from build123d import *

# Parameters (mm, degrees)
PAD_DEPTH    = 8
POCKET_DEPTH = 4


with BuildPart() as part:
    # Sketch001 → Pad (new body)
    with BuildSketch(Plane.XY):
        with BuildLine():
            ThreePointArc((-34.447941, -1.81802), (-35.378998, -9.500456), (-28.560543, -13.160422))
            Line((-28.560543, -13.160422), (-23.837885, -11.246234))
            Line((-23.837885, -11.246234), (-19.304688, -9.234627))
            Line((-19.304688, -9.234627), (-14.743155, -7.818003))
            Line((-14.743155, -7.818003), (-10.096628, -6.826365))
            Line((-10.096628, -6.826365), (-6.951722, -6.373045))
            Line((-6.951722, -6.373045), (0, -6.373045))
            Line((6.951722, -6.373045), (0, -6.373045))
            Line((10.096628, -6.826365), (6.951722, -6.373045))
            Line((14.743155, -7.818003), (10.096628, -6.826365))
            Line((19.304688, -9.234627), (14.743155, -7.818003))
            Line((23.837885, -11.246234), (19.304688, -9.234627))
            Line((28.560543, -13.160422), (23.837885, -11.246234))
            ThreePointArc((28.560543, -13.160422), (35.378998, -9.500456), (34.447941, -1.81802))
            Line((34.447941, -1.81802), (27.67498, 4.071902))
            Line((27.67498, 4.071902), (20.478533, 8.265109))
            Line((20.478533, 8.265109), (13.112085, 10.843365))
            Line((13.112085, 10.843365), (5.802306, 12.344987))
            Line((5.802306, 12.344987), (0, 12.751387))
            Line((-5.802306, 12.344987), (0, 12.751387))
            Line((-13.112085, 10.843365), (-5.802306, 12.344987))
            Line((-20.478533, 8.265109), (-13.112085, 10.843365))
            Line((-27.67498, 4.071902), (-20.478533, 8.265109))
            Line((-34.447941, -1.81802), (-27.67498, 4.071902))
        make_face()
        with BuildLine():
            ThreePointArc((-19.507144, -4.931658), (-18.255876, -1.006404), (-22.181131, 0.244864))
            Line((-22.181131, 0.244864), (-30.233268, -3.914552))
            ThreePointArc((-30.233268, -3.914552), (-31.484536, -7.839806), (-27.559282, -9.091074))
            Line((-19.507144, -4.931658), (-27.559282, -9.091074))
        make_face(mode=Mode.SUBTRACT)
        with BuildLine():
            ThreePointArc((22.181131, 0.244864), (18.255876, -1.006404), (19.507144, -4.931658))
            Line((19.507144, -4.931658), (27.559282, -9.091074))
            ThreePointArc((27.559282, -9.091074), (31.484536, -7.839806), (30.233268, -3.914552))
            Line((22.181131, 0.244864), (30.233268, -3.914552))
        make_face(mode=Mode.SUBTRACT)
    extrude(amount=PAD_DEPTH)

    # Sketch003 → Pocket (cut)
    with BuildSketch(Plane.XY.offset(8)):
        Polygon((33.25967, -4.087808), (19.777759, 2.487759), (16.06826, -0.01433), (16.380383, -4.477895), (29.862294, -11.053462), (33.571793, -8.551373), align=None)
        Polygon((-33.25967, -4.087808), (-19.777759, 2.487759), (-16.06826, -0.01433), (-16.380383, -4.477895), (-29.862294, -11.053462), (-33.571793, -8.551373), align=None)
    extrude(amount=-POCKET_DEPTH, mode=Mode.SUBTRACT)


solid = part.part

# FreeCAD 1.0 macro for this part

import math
import FreeCAD as App
import Part
import Sketcher
Q = App.Units.Quantity

doc = App.newDocument("Part")
body = doc.addObject("PartDesign::Body", "Body")

# Sketch on XY plane
sketch1 = doc.addObject("Sketcher::SketchObject", "Sketch")
body.addObject(sketch1)
sketch1.AttachmentSupport = (doc.XY_Plane, [""])
sketch1.MapMode = "FlatFace"
sketch1.addGeometry([
    Part.ArcOfCircle(Part.Circle(App.Vector(-29.291356, -6.340598, 0), App.Vector(0, 0, 1), 6.858869), math.radians(138.747645), math.radians(276.116483)),  # 0
    Part.LineSegment(App.Vector(-28.560543, -13.160422, 0), App.Vector(-23.837885, -11.246234, 0)),  # 1
    Part.LineSegment(App.Vector(-23.837885, -11.246234, 0), App.Vector(-19.304688, -9.234627, 0)),  # 2
    Part.LineSegment(App.Vector(-19.304688, -9.234627, 0), App.Vector(-14.743155, -7.818003, 0)),  # 3
    Part.LineSegment(App.Vector(-14.743155, -7.818003, 0), App.Vector(-10.096628, -6.826365, 0)),  # 4
    Part.LineSegment(App.Vector(-10.096628, -6.826365, 0), App.Vector(-6.951722, -6.373045, 0)),  # 5
    Part.LineSegment(App.Vector(-6.951722, -6.373045, 0), App.Vector(6.951722, -6.373045, 0)),  # 6
    Part.LineSegment(App.Vector(6.951722, -6.373045, 0), App.Vector(10.096628, -6.826365, 0)),  # 7
    Part.LineSegment(App.Vector(10.096628, -6.826365, 0), App.Vector(14.743155, -7.818003, 0)),  # 8
    Part.LineSegment(App.Vector(14.743155, -7.818003, 0), App.Vector(19.304688, -9.234627, 0)),  # 9
    Part.LineSegment(App.Vector(19.304688, -9.234627, 0), App.Vector(23.837885, -11.246234, 0)),  # 10
    Part.LineSegment(App.Vector(23.837885, -11.246234, 0), App.Vector(28.560543, -13.160422, 0)),  # 11
    Part.ArcOfCircle(Part.Circle(App.Vector(29.291356, -6.340598, 0), App.Vector(0, 0, 1), 6.858869), math.radians(-96.116483), math.radians(41.252355)),  # 12
    Part.LineSegment(App.Vector(34.447941, -1.81802, 0), App.Vector(27.67498, 4.071902, 0)),  # 13
    Part.LineSegment(App.Vector(27.67498, 4.071902, 0), App.Vector(20.478533, 8.265109, 0)),  # 14
    Part.LineSegment(App.Vector(20.478533, 8.265109, 0), App.Vector(13.112085, 10.843365, 0)),  # 15
    Part.LineSegment(App.Vector(13.112085, 10.843365, 0), App.Vector(5.802306, 12.344987, 0)),  # 16
    Part.LineSegment(App.Vector(5.802306, 12.344987, 0), App.Vector(0, 12.751387, 0)),  # 17
    Part.LineSegment(App.Vector(0, 12.751387, 0), App.Vector(-5.802306, 12.344987, 0)),  # 18
    Part.LineSegment(App.Vector(-5.802306, 12.344987, 0), App.Vector(-13.112085, 10.843365, 0)),  # 19
    Part.LineSegment(App.Vector(-13.112085, 10.843365, 0), App.Vector(-20.478533, 8.265109, 0)),  # 20
    Part.LineSegment(App.Vector(-20.478533, 8.265109, 0), App.Vector(-27.67498, 4.071902, 0)),  # 21
    Part.LineSegment(App.Vector(-27.67498, 4.071902, 0), App.Vector(-34.447941, -1.81802, 0)),  # 22
    Part.ArcOfCircle(Part.Circle(App.Vector(-20.844137, -2.343397, 0), App.Vector(0, 0, 1), 2.913185), math.radians(-62.680913), math.radians(117.319096)),  # 23
    Part.LineSegment(App.Vector(-19.507144, -4.931658, 0), App.Vector(-27.559282, -9.091074, 0)),  # 24
    Part.ArcOfCircle(Part.Circle(App.Vector(-28.896275, -6.502813, 0), App.Vector(0, 0, 1), 2.913185), math.radians(117.319083), math.radians(297.319083)),  # 25
    Part.LineSegment(App.Vector(-30.233268, -3.914552, 0), App.Vector(-22.181131, 0.244864, 0)),  # 26
    Part.ArcOfCircle(Part.Circle(App.Vector(20.844137, -2.343397, 0), App.Vector(0, 0, 1), 2.913185), math.radians(62.680904), math.radians(242.680913)),  # 27
    Part.LineSegment(App.Vector(22.181131, 0.244864, 0), App.Vector(30.233268, -3.914552, 0)),  # 28
    Part.ArcOfCircle(Part.Circle(App.Vector(28.896275, -6.502813, 0), App.Vector(0, 0, 1), 2.913185), math.radians(-117.319083), math.radians(62.680917)),  # 29
    Part.LineSegment(App.Vector(27.559282, -9.091074, 0), App.Vector(19.507144, -4.931658, 0)),  # 30
], False)
sketch1.addConstraint([
    Sketcher.Constraint("Coincident", 0, 2, 1, 1),
    Sketcher.Constraint("Coincident", 1, 2, 2, 1),
    Sketcher.Constraint("Coincident", 2, 2, 3, 1),
    Sketcher.Constraint("Coincident", 3, 2, 4, 1),
    Sketcher.Constraint("Coincident", 4, 2, 5, 1),
    Sketcher.Constraint("Coincident", 5, 2, 6, 1),
    Sketcher.Constraint("Coincident", 6, 2, 7, 1),
    Sketcher.Constraint("Coincident", 7, 2, 8, 1),
    Sketcher.Constraint("Coincident", 8, 2, 9, 1),
    Sketcher.Constraint("Coincident", 9, 2, 10, 1),
    Sketcher.Constraint("Coincident", 10, 2, 11, 1),
    Sketcher.Constraint("Coincident", 11, 2, 12, 1),
    Sketcher.Constraint("Coincident", 12, 2, 13, 1),
    Sketcher.Constraint("Coincident", 13, 2, 14, 1),
    Sketcher.Constraint("Coincident", 14, 2, 15, 1),
    Sketcher.Constraint("Coincident", 15, 2, 16, 1),
    Sketcher.Constraint("Coincident", 16, 2, 17, 1),
    Sketcher.Constraint("Coincident", 17, 2, 18, 1),
    Sketcher.Constraint("Coincident", 18, 2, 19, 1),
    Sketcher.Constraint("Coincident", 19, 2, 20, 1),
    Sketcher.Constraint("Coincident", 20, 2, 21, 1),
    Sketcher.Constraint("Coincident", 21, 2, 22, 1),
    Sketcher.Constraint("Coincident", 22, 2, 0, 1),
    Sketcher.Constraint("Coincident", 23, 1, 24, 1),
    Sketcher.Constraint("Coincident", 24, 2, 25, 2),
    Sketcher.Constraint("Coincident", 25, 1, 26, 1),
    Sketcher.Constraint("Coincident", 26, 2, 23, 2),
    Sketcher.Constraint("Coincident", 27, 1, 28, 1),
    Sketcher.Constraint("Coincident", 28, 2, 29, 2),
    Sketcher.Constraint("Coincident", 29, 1, 30, 1),
    Sketcher.Constraint("Coincident", 30, 2, 27, 2),
    Sketcher.Constraint("Horizontal", 6),
    Sketcher.Constraint("PointOnObject", 17, 2, -2),
    Sketcher.Constraint("Radius", 0, Q("6.858869 mm")),
    Sketcher.Constraint("Radius", 12, Q("6.858869 mm")),
    Sketcher.Constraint("Radius", 23, Q("2.913185 mm")),
    Sketcher.Constraint("Radius", 25, Q("2.913185 mm")),
    Sketcher.Constraint("Radius", 27, Q("2.913185 mm")),
    Sketcher.Constraint("Radius", 29, Q("2.913185 mm")),
    Sketcher.Constraint("DistanceY", 0, 3, -1, 1, Q("6.340598 mm")),
    Sketcher.Constraint("DistanceY", 12, 3, -1, 1, Q("6.340598 mm")),
    Sketcher.Constraint("DistanceY", -1, 1, 13, 2, Q("4.071902 mm")),
    Sketcher.Constraint("DistanceY", -1, 1, 21, 2, Q("4.071902 mm")),
    Sketcher.Constraint("DistanceY", 0, 3, 23, 3, Q("3.997202 mm")),
    Sketcher.Constraint("DistanceY", 12, 3, 27, 3, Q("3.997202 mm")),
    Sketcher.Constraint("DistanceX", 0, 3, 3, 2, Q("14.548201 mm")),
    Sketcher.Constraint("DistanceX", 8, 2, 12, 3, Q("14.548201 mm")),
    Sketcher.Constraint("DistanceY", 11, 2, 12, 2, Q("11.342402 mm")),
    Sketcher.Constraint("DistanceY", 16, 2, 17, 2, Q("0.4064 mm")),
    Sketcher.Constraint("DistanceY", 18, 2, 17, 2, Q("0.4064 mm")),
    Sketcher.Constraint("DistanceY", 0, 2, 22, 2, Q("11.342402 mm")),
    Sketcher.Constraint("DistanceX", 26, 2, 20, 2, Q("1.702598 mm")),
    Sketcher.Constraint("DistanceX", 14, 2, 27, 1, Q("1.702598 mm")),
    Sketcher.Constraint("Distance", 2, Q("4.95948 mm")),
    Sketcher.Constraint("Distance", 5, Q("3.17741 mm")),
    Sketcher.Constraint("Distance", 7, Q("3.17741 mm")),
    Sketcher.Constraint("Distance", 10, Q("4.95948 mm")),
    Sketcher.Constraint("Distance", 15, Q("7.804611 mm")),
    Sketcher.Constraint("Distance", 16, Q("7.462422 mm")),
    Sketcher.Constraint("Distance", 17, Q("5.816521 mm")),
    Sketcher.Constraint("Distance", 18, Q("5.816521 mm")),
    Sketcher.Constraint("Distance", 19, Q("7.462422 mm")),
    Sketcher.Constraint("Distance", 20, Q("7.804611 mm")),
    Sketcher.Constraint("DistanceX", 6, 1, 6, 2, Q("13.903444 mm")),
    Sketcher.Constraint("DistanceY", 0, 2, -1, 1, Q("13.160422 mm")),
    Sketcher.Constraint("DistanceX", 4, 2, -1, 1, Q("10.096628 mm")),
    Sketcher.Constraint("DistanceX", -1, 1, 7, 2, Q("10.096628 mm")),
    Sketcher.Constraint("DistanceX", -1, 1, 12, 2, Q("34.447941 mm")),
    Sketcher.Constraint("DistanceY", 12, 2, -1, 1, Q("1.81802 mm")),
    Sketcher.Constraint("DistanceX", -1, 1, 13, 2, Q("27.67498 mm")),
    Sketcher.Constraint("DistanceY", -1, 1, 14, 2, Q("8.265109 mm")),
    Sketcher.Constraint("DistanceY", -1, 1, 20, 2, Q("8.265109 mm")),
    Sketcher.Constraint("DistanceX", 21, 2, -1, 1, Q("27.67498 mm")),
    Sketcher.Constraint("DistanceX", 22, 2, -1, 1, Q("34.447941 mm")),
    Sketcher.Constraint("DistanceX", 24, 2, -1, 1, Q("27.559282 mm")),
    Sketcher.Constraint("DistanceX", 25, 1, -1, 1, Q("30.233268 mm")),
    Sketcher.Constraint("DistanceY", 25, 1, -1, 1, Q("3.914552 mm")),
    Sketcher.Constraint("DistanceX", 26, 2, -1, 1, Q("22.181131 mm")),
    Sketcher.Constraint("DistanceX", -1, 1, 27, 1, Q("22.181131 mm")),
    Sketcher.Constraint("DistanceY", 28, 2, -1, 1, Q("3.914552 mm")),
    Sketcher.Constraint("DistanceX", -1, 1, 29, 1, Q("27.559282 mm")),
    Sketcher.Constraint("DistanceX", 0, 3, 23, 3, Q("8.447219 mm")),
    Sketcher.Constraint("DistanceX", 0, 3, 25, 3, Q("0.395081 mm")),
    Sketcher.Constraint("DistanceX", 27, 3, 12, 3, Q("8.447219 mm")),
    Sketcher.Constraint("DistanceX", 29, 3, 12, 3, Q("0.395081 mm")),
    Sketcher.Constraint("DistanceY", 0, 2, 29, 3, Q("6.657609 mm")),
    Sketcher.Constraint("DistanceX", 0, 2, 1, 2, Q("4.722658 mm")),
    Sketcher.Constraint("DistanceY", 1, 2, 25, 3, Q("4.743421 mm")),
    Sketcher.Constraint("DistanceX", 23, 3, 2, 2, Q("1.539449 mm")),
    Sketcher.Constraint("DistanceY", 1, 2, 3, 2, Q("3.428231 mm")),
    Sketcher.Constraint("DistanceY", 3, 2, 4, 2, Q("0.991638 mm")),
    Sketcher.Constraint("DistanceY", 4, 2, 5, 2, Q("0.45332 mm")),
    Sketcher.Constraint("DistanceY", 8, 2, 7, 2, Q("0.991638 mm")),
    Sketcher.Constraint("DistanceX", 9, 2, 27, 3, Q("1.539449 mm")),
    Sketcher.Constraint("DistanceY", 9, 2, 27, 3, Q("6.89123 mm")),
    Sketcher.Constraint("DistanceX", 10, 2, 29, 3, Q("5.05839 mm")),
    Sketcher.Constraint("DistanceY", 27, 3, 15, 2, Q("13.186762 mm")),
    Sketcher.Constraint("DistanceY", 23, 1, 23, 3, Q("2.588261 mm")),
    Sketcher.Constraint("DistanceY", 30, 2, 27, 3, Q("2.588261 mm")),
])
pad1 = doc.addObject("PartDesign::Pad", "Pad")
body.addObject(pad1)
pad1.Profile = sketch1
pad1.Length = 8

# Sketch on XY plane
sketch2 = doc.addObject("Sketcher::SketchObject", "Sketch001")
body.addObject(sketch2)
sketch2.AttachmentSupport = (doc.XY_Plane, [""])
sketch2.MapMode = "FlatFace"
sketch2.AttachmentOffset = App.Placement(App.Vector(0, 0, 8), App.Rotation())
sketch2.addGeometry([
    Part.LineSegment(App.Vector(33.3, -4.1, 0), App.Vector(19.8, 2.5, 0)),  # 0
    Part.LineSegment(App.Vector(19.8, 2.5, 0), App.Vector(16.1, 0, 0)),  # 1
    Part.LineSegment(App.Vector(16.1, 0, 0), App.Vector(16.4, -4.5, 0)),  # 2
    Part.LineSegment(App.Vector(16.4, -4.5, 0), App.Vector(29.9, -11.1, 0)),  # 3
    Part.LineSegment(App.Vector(29.9, -11.1, 0), App.Vector(33.6, -8.6, 0)),  # 4
    Part.LineSegment(App.Vector(33.6, -8.6, 0), App.Vector(33.3, -4.1, 0)),  # 5
    Part.LineSegment(App.Vector(-19.8, 2.5, 0), App.Vector(-33.3, -4.1, 0)),  # 6
    Part.LineSegment(App.Vector(-33.3, -4.1, 0), App.Vector(-33.6, -8.6, 0)),  # 7
    Part.LineSegment(App.Vector(-33.6, -8.6, 0), App.Vector(-29.9, -11.1, 0)),  # 8
    Part.LineSegment(App.Vector(-29.9, -11.1, 0), App.Vector(-16.4, -4.5, 0)),  # 9
    Part.LineSegment(App.Vector(-16.4, -4.5, 0), App.Vector(-16.1, 0, 0)),  # 10
    Part.LineSegment(App.Vector(-16.1, 0, 0), App.Vector(-19.8, 2.5, 0)),  # 11
], False)
sketch2.addConstraint([
    Sketcher.Constraint("Coincident", 0, 2, 1, 1),
    Sketcher.Constraint("Coincident", 1, 2, 2, 1),
    Sketcher.Constraint("Coincident", 2, 2, 3, 1),
    Sketcher.Constraint("Coincident", 3, 2, 4, 1),
    Sketcher.Constraint("Coincident", 4, 2, 5, 1),
    Sketcher.Constraint("Coincident", 5, 2, 0, 1),
    Sketcher.Constraint("Coincident", 6, 2, 7, 1),
    Sketcher.Constraint("Coincident", 7, 2, 8, 1),
    Sketcher.Constraint("Coincident", 8, 2, 9, 1),
    Sketcher.Constraint("Coincident", 9, 2, 10, 1),
    Sketcher.Constraint("Coincident", 10, 2, 11, 1),
    Sketcher.Constraint("Coincident", 11, 2, 6, 1),
    Sketcher.Constraint("Symmetric", 5, 2, 6, 2, -2),
    Sketcher.Constraint("Symmetric", 4, 2, 7, 2, -2),
    Sketcher.Constraint("Symmetric", 3, 2, 8, 2, -2),
    Sketcher.Constraint("Symmetric", 2, 2, 9, 2, -2),
    Sketcher.Constraint("Symmetric", 1, 2, 10, 2, -2),
    Sketcher.Constraint("Symmetric", 0, 2, 11, 2, -2),
    Sketcher.Constraint("Parallel", 0, 3),
    Sketcher.Constraint("Parallel", 1, 4),
    Sketcher.Constraint("Parallel", 2, 5),
    Sketcher.Constraint("Equal", 1, 2),
    Sketcher.Constraint("Equal", 0, 3),
    Sketcher.Constraint("Angle", 0, Q("154.000001 deg")),
    Sketcher.Constraint("Angle", 1, Q("-145.999996 deg")),
    Sketcher.Constraint("Angle", 2, Q("-85.999998 deg")),
    Sketcher.Constraint("Distance", 0, Q("15 mm")),
    Sketcher.Constraint("DistanceX", 1, 2, 0, 2, Q("3.709499 mm")),
    Sketcher.Constraint("DistanceX", -1, 1, 0, 2, Q("19.777759 mm")),
    Sketcher.Constraint("DistanceY", -1, 1, 0, 2, Q("2.487759 mm")),
])
pocket1 = doc.addObject("PartDesign::Pocket", "Pocket")
body.addObject(pocket1)
pocket1.Profile = sketch2
pocket1.Length = 4

doc.recompute()
